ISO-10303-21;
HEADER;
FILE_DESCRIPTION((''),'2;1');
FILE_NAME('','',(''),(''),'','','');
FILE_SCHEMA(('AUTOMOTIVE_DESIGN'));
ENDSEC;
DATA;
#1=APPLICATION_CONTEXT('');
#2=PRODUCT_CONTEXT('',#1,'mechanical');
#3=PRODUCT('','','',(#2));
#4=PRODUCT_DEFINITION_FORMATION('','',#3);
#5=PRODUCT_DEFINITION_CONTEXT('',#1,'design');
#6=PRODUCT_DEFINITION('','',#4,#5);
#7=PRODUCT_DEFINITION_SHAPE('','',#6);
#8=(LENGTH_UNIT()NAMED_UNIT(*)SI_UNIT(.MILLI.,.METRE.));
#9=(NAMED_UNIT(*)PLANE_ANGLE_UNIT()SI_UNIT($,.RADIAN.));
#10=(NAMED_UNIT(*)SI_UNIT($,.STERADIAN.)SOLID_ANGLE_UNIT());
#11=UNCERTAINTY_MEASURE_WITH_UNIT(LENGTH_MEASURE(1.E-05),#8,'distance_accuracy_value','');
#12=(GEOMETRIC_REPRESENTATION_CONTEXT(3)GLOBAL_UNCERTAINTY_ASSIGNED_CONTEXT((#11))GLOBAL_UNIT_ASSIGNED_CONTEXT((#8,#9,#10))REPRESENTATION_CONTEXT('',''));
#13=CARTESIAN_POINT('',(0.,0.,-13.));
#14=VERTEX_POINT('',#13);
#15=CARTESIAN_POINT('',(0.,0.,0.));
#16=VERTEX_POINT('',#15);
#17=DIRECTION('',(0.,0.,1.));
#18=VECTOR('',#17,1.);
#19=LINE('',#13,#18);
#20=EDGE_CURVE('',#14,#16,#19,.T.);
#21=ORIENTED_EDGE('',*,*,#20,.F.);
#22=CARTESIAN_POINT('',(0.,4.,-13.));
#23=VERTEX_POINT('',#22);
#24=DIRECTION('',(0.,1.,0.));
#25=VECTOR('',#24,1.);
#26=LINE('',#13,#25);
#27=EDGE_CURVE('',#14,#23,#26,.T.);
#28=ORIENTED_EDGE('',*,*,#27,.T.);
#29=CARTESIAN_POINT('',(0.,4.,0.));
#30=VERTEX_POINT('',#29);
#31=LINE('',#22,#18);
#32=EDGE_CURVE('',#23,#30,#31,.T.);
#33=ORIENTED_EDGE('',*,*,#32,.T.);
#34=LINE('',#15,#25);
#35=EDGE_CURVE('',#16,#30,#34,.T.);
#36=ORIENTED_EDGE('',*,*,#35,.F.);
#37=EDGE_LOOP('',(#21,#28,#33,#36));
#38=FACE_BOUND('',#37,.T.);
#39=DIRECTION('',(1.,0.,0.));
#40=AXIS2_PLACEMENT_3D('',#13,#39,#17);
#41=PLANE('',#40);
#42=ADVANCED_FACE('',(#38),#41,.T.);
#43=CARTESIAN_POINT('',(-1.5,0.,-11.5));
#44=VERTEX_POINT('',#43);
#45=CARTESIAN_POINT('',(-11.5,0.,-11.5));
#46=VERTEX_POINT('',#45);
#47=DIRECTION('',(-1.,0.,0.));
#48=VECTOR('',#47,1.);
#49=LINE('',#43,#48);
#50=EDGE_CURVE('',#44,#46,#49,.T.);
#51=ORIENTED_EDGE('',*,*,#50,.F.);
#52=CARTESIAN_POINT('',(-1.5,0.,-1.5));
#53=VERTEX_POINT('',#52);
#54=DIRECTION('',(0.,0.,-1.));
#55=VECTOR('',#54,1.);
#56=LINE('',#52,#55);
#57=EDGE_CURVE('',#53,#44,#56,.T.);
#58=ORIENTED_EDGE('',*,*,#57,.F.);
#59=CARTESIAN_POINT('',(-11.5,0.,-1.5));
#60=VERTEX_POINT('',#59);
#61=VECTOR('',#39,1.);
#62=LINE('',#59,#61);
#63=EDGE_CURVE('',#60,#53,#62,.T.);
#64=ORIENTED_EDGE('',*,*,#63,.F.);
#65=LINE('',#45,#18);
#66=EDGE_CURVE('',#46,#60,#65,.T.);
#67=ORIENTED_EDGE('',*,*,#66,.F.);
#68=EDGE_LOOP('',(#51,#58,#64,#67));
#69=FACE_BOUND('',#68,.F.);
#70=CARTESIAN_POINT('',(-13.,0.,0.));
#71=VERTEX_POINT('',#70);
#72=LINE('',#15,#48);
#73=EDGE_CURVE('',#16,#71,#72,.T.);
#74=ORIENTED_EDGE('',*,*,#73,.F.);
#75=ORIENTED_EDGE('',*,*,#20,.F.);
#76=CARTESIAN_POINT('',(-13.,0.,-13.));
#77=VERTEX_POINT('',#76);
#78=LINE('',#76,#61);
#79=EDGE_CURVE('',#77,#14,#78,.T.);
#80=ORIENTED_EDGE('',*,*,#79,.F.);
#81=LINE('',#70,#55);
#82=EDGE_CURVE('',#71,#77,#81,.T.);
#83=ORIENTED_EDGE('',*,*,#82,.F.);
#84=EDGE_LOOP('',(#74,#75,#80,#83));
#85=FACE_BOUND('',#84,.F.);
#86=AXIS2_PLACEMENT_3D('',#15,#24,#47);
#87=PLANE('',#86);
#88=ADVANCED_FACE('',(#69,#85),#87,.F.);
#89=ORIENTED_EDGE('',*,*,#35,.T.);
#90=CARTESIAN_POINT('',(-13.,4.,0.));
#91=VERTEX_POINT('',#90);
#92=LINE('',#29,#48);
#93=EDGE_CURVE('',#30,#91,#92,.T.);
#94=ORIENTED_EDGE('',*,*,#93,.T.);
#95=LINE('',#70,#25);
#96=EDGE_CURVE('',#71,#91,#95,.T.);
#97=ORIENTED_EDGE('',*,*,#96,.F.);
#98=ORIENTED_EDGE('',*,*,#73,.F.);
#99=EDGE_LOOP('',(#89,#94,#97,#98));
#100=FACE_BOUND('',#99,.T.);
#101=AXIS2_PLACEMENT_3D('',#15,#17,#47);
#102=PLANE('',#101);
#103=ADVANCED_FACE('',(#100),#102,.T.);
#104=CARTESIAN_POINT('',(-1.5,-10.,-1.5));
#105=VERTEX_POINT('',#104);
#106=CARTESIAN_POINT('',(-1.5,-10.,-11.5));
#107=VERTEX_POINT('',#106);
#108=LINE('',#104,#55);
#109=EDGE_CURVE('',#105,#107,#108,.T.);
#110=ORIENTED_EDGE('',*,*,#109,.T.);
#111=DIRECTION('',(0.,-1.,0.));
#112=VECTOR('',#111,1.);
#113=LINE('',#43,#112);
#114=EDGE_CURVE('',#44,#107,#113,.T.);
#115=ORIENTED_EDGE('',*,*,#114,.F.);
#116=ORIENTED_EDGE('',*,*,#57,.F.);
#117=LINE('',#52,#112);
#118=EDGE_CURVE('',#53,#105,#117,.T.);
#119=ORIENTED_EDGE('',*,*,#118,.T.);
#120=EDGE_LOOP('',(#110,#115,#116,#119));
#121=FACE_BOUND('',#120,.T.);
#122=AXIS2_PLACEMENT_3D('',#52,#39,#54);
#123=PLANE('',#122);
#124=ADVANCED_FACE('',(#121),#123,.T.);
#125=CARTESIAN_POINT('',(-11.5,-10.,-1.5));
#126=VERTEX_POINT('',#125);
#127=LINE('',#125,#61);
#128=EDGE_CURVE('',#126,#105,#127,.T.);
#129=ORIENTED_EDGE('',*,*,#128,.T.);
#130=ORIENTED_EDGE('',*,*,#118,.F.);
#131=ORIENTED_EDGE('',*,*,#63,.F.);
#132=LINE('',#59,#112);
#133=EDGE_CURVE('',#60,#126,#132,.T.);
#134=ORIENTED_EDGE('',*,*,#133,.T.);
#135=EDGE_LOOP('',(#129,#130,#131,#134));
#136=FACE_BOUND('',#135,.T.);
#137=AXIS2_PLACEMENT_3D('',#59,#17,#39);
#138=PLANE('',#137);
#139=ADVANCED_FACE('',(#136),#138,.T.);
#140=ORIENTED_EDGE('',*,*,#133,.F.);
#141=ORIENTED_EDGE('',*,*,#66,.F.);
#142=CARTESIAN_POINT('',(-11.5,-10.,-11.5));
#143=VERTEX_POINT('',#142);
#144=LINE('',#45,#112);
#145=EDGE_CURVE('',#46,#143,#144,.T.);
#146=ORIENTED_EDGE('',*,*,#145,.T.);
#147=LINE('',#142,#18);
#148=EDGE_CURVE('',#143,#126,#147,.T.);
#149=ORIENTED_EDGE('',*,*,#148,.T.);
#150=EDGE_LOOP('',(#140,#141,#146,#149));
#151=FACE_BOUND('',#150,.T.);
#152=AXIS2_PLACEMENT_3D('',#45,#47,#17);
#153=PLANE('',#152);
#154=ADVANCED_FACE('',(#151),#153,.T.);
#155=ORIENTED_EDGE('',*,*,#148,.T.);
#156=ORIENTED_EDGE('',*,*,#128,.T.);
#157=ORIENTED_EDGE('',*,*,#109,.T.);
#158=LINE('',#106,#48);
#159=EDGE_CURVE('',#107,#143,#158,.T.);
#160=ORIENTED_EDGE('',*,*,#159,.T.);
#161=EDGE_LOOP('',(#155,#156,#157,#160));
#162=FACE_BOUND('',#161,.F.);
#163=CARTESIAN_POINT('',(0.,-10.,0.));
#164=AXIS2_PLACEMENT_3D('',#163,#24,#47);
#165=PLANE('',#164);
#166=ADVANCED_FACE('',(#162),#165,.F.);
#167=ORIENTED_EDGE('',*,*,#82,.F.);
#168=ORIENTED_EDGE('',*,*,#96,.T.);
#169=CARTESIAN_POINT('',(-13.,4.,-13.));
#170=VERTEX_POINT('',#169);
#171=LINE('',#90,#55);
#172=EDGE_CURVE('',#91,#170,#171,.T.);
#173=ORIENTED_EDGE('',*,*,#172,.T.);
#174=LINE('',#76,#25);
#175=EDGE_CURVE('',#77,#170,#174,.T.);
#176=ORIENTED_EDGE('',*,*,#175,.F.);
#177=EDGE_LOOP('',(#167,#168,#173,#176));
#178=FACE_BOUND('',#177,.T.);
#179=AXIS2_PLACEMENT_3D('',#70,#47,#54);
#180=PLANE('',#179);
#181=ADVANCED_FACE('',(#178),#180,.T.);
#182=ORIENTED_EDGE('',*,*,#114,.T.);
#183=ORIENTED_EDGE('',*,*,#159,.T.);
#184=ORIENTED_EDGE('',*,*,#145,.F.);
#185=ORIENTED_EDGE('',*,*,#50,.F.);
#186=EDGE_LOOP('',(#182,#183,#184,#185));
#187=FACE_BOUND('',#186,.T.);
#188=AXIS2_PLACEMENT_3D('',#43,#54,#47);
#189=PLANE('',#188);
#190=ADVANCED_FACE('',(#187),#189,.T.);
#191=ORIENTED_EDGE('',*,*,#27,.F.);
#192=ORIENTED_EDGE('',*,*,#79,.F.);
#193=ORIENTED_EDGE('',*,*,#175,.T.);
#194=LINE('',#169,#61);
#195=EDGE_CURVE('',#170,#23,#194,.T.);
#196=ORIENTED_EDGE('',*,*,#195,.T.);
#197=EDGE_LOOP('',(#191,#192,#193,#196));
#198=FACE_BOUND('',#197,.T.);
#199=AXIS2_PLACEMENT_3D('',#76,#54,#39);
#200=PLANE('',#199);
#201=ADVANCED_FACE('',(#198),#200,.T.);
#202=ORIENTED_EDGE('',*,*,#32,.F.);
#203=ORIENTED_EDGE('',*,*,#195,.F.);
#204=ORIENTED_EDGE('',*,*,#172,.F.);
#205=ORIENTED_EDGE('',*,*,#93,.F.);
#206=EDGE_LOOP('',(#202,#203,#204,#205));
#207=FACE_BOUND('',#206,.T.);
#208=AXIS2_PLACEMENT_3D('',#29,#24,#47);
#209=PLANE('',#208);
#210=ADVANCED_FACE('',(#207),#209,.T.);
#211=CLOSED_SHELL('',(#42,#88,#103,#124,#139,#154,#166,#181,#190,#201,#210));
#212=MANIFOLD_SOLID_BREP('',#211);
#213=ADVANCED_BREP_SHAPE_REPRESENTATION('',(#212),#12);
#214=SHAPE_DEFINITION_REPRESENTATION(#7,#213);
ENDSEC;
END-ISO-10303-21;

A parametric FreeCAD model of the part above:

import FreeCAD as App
import Part
import Sketcher
from FreeCAD import Vector
Q = App.Units.Quantity


def add_polygon(sketch, points):
    """Adds a closed chain of lines whose ends are joined by coincident constraints."""
    first, n = sketch.GeometryCount, len(points)
    for a, b in zip(points, points[1:] + points[:1]):
        sketch.addGeometry(Part.LineSegment(App.Vector(*a, 0), App.Vector(*b, 0)), False)
    for i in range(n):
        sketch.addConstraint(Sketcher.Constraint("Coincident", first + i, 2, first + (i + 1) % n, 1))

doc = App.newDocument("Part")
body = doc.addObject("PartDesign::Body", "Body")

# Sketch on XZ plane
sketch1 = body.newObject("Sketcher::SketchObject", "Sketch")
sketch1.AttachmentSupport = (doc.getObject("XZ_Plane"), [""])
sketch1.MapMode = "FlatFace"
add_polygon(sketch1, [(-13, 0), (0, 0), (0, -13), (-13, -13)])  # lines 0-3
sketch1.addConstraint(Sketcher.Constraint("Horizontal", 0))
sketch1.addConstraint(Sketcher.Constraint("Vertical", 1))
sketch1.addConstraint(Sketcher.Constraint("Horizontal", 2))
sketch1.addConstraint(Sketcher.Constraint("Vertical", 3))
sketch1.addConstraint(Sketcher.Constraint("Coincident", 0, 2, -1, 1))
sketch1.addConstraint(Sketcher.Constraint("Equal", 2, 1))
sketch1.addConstraint(Sketcher.Constraint("DistanceX", 0, 1, 0, 2, Q("13 mm")))
pad1 = body.newObject("PartDesign::Pad", "Pad")
pad1.Profile = sketch1
pad1.Length = 4
pad1.Reversed = True

# Sketch on XZ plane
sketch2 = body.newObject("Sketcher::SketchObject", "Sketch001")
sketch2.AttachmentSupport = (doc.getObject("XZ_Plane"), [""])
sketch2.MapMode = "FlatFace"
add_polygon(sketch2, [(-12, -12), (-12, -2), (-2, -2), (-2, -12)])  # lines 0-3
sketch2.addConstraint(Sketcher.Constraint("Vertical", 0))
sketch2.addConstraint(Sketcher.Constraint("Horizontal", 1))
sketch2.addConstraint(Sketcher.Constraint("Vertical", 2))
sketch2.addConstraint(Sketcher.Constraint("Horizontal", 3))
sketch2.addConstraint(Sketcher.Constraint("Equal", 3, 0))
sketch2.addConstraint(Sketcher.Constraint("DistanceX", 1, 1, 1, 2, Q("10 mm")))
sketch2.addConstraint(Sketcher.Constraint("DistanceX", 0, 2, -1, 1, Q("11.5 mm")))
sketch2.addConstraint(Sketcher.Constraint("DistanceY", 0, 2, -1, 1, Q("1.5 mm")))
pad2 = body.newObject("PartDesign::Pad", "Pad001")
pad2.Profile = sketch2
pad2.Length = 10

doc.recompute()
